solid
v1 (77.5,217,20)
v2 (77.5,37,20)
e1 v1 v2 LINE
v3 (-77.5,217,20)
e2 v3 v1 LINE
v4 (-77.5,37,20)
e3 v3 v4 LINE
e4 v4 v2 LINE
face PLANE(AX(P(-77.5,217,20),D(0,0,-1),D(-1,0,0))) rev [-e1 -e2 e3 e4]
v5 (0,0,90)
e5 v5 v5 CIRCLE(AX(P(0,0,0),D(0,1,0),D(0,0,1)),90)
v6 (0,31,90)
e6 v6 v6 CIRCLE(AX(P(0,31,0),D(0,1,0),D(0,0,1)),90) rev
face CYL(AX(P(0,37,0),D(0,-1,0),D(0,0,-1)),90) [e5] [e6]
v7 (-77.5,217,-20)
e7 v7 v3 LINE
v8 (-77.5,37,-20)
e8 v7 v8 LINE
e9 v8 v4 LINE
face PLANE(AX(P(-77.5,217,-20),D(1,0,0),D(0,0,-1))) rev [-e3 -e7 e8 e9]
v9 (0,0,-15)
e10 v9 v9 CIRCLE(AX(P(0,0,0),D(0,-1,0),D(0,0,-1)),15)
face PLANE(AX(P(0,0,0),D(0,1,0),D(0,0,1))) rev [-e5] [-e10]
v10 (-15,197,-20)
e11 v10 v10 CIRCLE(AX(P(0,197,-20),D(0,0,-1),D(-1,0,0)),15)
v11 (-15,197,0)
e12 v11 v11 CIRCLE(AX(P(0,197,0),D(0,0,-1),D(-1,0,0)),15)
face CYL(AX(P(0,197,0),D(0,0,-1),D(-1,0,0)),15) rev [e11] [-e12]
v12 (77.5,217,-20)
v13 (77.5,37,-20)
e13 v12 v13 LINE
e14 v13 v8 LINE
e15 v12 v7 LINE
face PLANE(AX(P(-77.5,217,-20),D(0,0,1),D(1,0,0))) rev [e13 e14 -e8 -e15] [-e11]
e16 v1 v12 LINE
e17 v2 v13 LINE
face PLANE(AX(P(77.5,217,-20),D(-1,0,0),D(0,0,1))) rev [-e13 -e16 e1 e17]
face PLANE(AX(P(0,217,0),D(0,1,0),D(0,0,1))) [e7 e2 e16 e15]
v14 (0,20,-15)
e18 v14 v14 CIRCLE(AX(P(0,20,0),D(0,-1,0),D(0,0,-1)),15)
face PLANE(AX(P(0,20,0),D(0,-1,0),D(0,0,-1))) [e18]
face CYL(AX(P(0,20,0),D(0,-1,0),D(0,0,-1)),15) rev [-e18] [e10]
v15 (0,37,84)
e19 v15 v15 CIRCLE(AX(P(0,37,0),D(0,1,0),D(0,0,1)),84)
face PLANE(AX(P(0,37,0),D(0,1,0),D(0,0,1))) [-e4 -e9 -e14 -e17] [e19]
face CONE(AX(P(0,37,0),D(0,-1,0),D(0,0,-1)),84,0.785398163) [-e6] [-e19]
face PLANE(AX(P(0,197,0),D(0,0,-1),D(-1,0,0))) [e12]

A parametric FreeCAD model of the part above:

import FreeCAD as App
import Part
import Sketcher


def edges_at(feature, points):
    """Names of the edges that pass closest to the given points."""
    edges = feature.Shape.Edges
    near = lambda p: min(range(len(edges)), key=lambda i: edges[i].distToShape(Part.Vertex(*p))[0])
    return sorted({f"Edge{near(p) + 1}" for p in points})


def add_polygon(sketch, points):
    """Adds a closed chain of lines whose ends are joined by coincident constraints."""
    first, n = sketch.GeometryCount, len(points)
    for a, b in zip(points, points[1:] + points[:1]):
        sketch.addGeometry(Part.LineSegment(App.Vector(*a, 0), App.Vector(*b, 0)), False)
    for i in range(n):
        sketch.addConstraint(Sketcher.Constraint("Coincident", first + i, 2, first + (i + 1) % n, 1))

doc = App.newDocument("Part")
body = doc.addObject("PartDesign::Body", "Body")

sketch1 = body.newObject("Sketcher::SketchObject", "Sketch")
sketch1.AttachmentSupport = (doc.getObject("XZ_Plane"), [""])
sketch1.MapMode = "FlatFace"
sketch1.addGeometry(Part.Circle(App.Vector(0, 0, 0), App.Vector(0, 0, 1), 90), False)
sketch1.addConstraint([
    Sketcher.Constraint("Coincident", 0, 3, -1, 1),
    Sketcher.Constraint("Diameter", 0, 180.0),
])
pad1 = body.newObject("PartDesign::Pad", "Pad")
pad1.Profile = sketch1
pad1.Length = 37
pad1.Reversed = True
doc.recompute()

chamfer = body.newObject("PartDesign::Chamfer", "Chamfer")
chamfer.Base = (pad1, edges_at(pad1, [(0, 37, -90)]))
chamfer.Size = 6

sketch2 = body.newObject("Sketcher::SketchObject", "Sketch001")
sketch2.AttachmentSupport = (doc.getObject("XZ_Plane"), [""])
sketch2.MapMode = "FlatFace"
sketch2.AttachmentOffset = App.Placement(App.Vector(0, 0, -37), App.Rotation())
add_polygon(sketch2, [(-78, -20), (-78, 20), (78, 20), (78, -20)])
sketch2.addConstraint([
    Sketcher.Constraint("Vertical", 0),
    Sketcher.Constraint("Horizontal", 1),
    Sketcher.Constraint("Vertical", 2),
    Sketcher.Constraint("Horizontal", 3),
    Sketcher.Constraint("Symmetric", 0, 2, 2, 2, -1, 1),
    Sketcher.Constraint("DistanceX", 1, 1, 1, 2, 155.0),
    Sketcher.Constraint("DistanceY", 0, 1, 0, 2, 40.0),
])
pad2 = body.newObject("PartDesign::Pad", "Pad001")
pad2.Profile = sketch2
pad2.Length = 180
pad2.Reversed = True

sketch3 = body.newObject("Sketcher::SketchObject", "Sketch002")
sketch3.AttachmentSupport = (doc.getObject("XZ_Plane"), [""])
sketch3.MapMode = "FlatFace"
sketch3.addGeometry(Part.Circle(App.Vector(0, 0, 0), App.Vector(0, 0, 1), 15), False)
sketch3.addConstraint([
    Sketcher.Constraint("Coincident", 0, 3, -1, 1),
    Sketcher.Constraint("Diameter", 0, 30.0),
])
pocket1 = body.newObject("PartDesign::Pocket", "Pocket")
pocket1.Profile = sketch3
pocket1.Length = 20

sketch4 = body.newObject("Sketcher::SketchObject", "Sketch003")
sketch4.AttachmentSupport = (doc.getObject("XY_Plane"), [""])
sketch4.MapMode = "FlatFace"
sketch4.AttachmentOffset = App.Placement(App.Vector(0, 0, -20), App.Rotation())
sketch4.addGeometry(Part.Circle(App.Vector(0, 197, 0), App.Vector(0, 0, 1), 15), False)
sketch4.addConstraint([
    Sketcher.Constraint("PointOnObject", 0, 3, -2),
    Sketcher.Constraint("Diameter", 0, 30.0),
    Sketcher.Constraint("DistanceY", -1, 1, 0, 3, 197.0),
])
pocket2 = body.newObject("PartDesign::Pocket", "Pocket001")
pocket2.Profile = sketch4
pocket2.Length = 20
pocket2.Reversed = True

doc.recompute()
